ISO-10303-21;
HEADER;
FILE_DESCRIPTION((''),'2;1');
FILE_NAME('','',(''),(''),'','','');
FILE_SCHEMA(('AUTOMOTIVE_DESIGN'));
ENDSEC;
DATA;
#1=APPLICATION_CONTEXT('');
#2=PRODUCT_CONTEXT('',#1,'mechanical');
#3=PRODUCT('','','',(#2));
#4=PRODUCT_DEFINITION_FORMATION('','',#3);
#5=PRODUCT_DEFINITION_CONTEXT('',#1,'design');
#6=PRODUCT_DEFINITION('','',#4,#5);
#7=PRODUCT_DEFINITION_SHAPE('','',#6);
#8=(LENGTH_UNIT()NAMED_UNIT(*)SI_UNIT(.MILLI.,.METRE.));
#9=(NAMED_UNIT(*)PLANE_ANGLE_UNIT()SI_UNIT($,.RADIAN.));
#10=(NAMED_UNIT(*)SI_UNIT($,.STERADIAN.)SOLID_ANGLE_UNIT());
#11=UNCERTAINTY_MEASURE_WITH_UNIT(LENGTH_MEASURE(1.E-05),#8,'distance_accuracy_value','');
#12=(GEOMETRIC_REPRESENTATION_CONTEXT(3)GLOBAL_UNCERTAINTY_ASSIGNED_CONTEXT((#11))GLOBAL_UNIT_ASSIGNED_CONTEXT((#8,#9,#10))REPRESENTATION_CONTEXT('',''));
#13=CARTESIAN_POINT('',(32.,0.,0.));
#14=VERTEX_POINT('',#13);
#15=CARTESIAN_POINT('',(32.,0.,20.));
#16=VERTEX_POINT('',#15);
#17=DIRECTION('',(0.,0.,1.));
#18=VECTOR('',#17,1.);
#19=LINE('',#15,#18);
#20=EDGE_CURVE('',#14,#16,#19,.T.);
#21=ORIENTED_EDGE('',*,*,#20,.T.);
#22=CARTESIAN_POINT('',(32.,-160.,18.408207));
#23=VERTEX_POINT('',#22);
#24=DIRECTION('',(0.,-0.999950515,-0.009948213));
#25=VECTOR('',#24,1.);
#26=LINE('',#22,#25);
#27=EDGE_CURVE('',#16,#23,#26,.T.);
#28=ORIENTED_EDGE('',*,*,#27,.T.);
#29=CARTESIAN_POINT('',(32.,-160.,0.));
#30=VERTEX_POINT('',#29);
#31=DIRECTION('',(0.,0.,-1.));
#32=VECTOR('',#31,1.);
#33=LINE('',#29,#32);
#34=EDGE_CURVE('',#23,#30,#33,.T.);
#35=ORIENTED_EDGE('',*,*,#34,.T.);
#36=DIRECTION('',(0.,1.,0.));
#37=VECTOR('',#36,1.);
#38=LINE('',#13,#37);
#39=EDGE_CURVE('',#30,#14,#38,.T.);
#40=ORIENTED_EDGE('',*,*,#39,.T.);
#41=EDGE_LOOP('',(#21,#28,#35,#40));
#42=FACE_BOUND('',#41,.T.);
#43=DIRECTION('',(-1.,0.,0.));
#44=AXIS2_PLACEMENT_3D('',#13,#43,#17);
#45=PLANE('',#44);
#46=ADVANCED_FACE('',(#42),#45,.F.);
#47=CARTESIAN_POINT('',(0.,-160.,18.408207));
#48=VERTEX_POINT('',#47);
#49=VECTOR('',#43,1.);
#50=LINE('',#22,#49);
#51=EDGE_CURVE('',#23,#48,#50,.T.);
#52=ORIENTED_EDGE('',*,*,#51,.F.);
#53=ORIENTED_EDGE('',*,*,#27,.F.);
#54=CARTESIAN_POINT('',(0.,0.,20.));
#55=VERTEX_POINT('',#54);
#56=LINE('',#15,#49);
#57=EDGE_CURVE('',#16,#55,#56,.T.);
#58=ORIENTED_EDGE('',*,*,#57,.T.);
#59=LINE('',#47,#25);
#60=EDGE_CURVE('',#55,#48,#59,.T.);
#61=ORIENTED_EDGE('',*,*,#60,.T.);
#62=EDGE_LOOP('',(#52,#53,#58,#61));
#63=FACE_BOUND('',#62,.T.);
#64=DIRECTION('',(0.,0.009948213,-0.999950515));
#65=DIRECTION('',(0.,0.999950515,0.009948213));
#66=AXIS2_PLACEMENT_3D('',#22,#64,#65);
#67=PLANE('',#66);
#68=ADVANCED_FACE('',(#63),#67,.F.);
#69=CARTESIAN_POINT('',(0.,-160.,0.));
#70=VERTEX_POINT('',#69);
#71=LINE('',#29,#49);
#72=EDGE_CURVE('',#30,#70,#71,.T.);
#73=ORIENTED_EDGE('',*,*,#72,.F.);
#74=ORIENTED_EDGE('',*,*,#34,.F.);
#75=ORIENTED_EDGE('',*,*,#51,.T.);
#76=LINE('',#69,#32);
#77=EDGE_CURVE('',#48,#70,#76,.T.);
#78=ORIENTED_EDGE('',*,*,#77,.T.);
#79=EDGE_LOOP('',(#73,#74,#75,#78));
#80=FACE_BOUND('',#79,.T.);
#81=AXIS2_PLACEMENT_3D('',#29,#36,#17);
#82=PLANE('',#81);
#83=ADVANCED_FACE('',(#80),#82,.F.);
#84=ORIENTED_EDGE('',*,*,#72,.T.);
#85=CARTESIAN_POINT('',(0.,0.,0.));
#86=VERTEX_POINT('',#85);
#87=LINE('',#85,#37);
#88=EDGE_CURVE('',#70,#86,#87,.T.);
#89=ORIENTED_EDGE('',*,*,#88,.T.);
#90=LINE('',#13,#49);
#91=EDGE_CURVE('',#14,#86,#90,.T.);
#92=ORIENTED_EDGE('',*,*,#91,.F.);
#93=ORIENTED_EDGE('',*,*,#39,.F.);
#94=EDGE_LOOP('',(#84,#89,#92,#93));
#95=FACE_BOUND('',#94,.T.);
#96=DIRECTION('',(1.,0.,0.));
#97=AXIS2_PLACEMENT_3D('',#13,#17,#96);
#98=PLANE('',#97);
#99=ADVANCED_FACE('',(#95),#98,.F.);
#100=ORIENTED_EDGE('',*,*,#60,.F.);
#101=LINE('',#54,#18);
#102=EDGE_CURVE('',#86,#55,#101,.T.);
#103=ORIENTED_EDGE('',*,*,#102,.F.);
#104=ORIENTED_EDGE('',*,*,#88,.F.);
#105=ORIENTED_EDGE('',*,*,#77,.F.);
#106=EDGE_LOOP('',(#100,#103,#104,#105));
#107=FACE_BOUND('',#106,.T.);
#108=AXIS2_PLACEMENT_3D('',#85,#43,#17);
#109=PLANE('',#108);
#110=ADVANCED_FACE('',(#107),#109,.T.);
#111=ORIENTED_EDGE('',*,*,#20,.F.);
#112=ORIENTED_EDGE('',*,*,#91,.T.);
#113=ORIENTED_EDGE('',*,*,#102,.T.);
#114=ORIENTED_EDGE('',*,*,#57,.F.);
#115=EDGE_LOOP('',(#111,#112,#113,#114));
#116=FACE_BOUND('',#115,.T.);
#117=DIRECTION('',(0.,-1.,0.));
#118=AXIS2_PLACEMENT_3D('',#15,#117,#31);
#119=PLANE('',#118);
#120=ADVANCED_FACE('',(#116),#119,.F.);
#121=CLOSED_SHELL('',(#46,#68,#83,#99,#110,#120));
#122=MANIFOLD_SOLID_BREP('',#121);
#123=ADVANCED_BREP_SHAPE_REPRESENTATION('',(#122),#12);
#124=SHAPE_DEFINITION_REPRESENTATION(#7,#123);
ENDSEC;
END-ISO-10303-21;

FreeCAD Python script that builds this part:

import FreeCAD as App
import Part
import Sketcher
Q = App.Units.Quantity


def add_polygon(sketch, points):
    """Adds a closed chain of lines whose ends are joined by coincident constraints."""
    first, n = sketch.GeometryCount, len(points)
    for a, b in zip(points, points[1:] + points[:1]):
        sketch.addGeometry(Part.LineSegment(App.Vector(*a, 0), App.Vector(*b, 0)), False)
    for i in range(n):
        sketch.addConstraint(Sketcher.Constraint("Coincident", first + i, 2, first + (i + 1) % n, 1))

doc = App.newDocument("Part")
params = doc.addObject("Spreadsheet::Sheet", "Params")
for row, (alias, value) in enumerate([
    ("sketch1_width", "160 mm"),
    ("sketch1_height", "20 mm"),
    ("pad1_length", "32 mm"),
], start=1):
    params.set(f"A{row}", alias)
    params.set(f"B{row}", "=" + value)
    params.setAlias(f"B{row}", alias)

body = doc.addObject("PartDesign::Body", "Body")

# Sketch on YZ plane
sketch1 = doc.addObject("Sketcher::SketchObject", "Sketch")
body.addObject(sketch1)
sketch1.AttachmentSupport = (doc.YZ_Plane, [""])
sketch1.MapMode = "FlatFace"
add_polygon(sketch1, [(-160, 0), (0, 0), (0, 20), (-160, 18)])  # lines 0-3
sketch1.addConstraint(Sketcher.Constraint("Horizontal", 0))
sketch1.addConstraint(Sketcher.Constraint("Vertical", 1))
sketch1.addConstraint(Sketcher.Constraint("Vertical", 3))
sketch1.addConstraint(Sketcher.Constraint("Coincident", 0, 2, -1, 1))
sketch1.addConstraint(Sketcher.Constraint("DistanceX", 0, 1, 0, 2, Q("160 mm")))
sketch1.addConstraint(Sketcher.Constraint("DistanceY", 1, 1, 1, 2, Q("20 mm")))
sketch1.addConstraint(Sketcher.Constraint("Angle", 2, Q("-179.43 deg")))
sketch1.setExpression("Constraints[8]", "Params.sketch1_width")
sketch1.setExpression("Constraints[9]", "Params.sketch1_height")
pad1 = doc.addObject("PartDesign::Pad", "Pad")
body.addObject(pad1)
pad1.Profile = sketch1
pad1.setExpression("Length", "Params.pad1_length")

doc.recompute()
